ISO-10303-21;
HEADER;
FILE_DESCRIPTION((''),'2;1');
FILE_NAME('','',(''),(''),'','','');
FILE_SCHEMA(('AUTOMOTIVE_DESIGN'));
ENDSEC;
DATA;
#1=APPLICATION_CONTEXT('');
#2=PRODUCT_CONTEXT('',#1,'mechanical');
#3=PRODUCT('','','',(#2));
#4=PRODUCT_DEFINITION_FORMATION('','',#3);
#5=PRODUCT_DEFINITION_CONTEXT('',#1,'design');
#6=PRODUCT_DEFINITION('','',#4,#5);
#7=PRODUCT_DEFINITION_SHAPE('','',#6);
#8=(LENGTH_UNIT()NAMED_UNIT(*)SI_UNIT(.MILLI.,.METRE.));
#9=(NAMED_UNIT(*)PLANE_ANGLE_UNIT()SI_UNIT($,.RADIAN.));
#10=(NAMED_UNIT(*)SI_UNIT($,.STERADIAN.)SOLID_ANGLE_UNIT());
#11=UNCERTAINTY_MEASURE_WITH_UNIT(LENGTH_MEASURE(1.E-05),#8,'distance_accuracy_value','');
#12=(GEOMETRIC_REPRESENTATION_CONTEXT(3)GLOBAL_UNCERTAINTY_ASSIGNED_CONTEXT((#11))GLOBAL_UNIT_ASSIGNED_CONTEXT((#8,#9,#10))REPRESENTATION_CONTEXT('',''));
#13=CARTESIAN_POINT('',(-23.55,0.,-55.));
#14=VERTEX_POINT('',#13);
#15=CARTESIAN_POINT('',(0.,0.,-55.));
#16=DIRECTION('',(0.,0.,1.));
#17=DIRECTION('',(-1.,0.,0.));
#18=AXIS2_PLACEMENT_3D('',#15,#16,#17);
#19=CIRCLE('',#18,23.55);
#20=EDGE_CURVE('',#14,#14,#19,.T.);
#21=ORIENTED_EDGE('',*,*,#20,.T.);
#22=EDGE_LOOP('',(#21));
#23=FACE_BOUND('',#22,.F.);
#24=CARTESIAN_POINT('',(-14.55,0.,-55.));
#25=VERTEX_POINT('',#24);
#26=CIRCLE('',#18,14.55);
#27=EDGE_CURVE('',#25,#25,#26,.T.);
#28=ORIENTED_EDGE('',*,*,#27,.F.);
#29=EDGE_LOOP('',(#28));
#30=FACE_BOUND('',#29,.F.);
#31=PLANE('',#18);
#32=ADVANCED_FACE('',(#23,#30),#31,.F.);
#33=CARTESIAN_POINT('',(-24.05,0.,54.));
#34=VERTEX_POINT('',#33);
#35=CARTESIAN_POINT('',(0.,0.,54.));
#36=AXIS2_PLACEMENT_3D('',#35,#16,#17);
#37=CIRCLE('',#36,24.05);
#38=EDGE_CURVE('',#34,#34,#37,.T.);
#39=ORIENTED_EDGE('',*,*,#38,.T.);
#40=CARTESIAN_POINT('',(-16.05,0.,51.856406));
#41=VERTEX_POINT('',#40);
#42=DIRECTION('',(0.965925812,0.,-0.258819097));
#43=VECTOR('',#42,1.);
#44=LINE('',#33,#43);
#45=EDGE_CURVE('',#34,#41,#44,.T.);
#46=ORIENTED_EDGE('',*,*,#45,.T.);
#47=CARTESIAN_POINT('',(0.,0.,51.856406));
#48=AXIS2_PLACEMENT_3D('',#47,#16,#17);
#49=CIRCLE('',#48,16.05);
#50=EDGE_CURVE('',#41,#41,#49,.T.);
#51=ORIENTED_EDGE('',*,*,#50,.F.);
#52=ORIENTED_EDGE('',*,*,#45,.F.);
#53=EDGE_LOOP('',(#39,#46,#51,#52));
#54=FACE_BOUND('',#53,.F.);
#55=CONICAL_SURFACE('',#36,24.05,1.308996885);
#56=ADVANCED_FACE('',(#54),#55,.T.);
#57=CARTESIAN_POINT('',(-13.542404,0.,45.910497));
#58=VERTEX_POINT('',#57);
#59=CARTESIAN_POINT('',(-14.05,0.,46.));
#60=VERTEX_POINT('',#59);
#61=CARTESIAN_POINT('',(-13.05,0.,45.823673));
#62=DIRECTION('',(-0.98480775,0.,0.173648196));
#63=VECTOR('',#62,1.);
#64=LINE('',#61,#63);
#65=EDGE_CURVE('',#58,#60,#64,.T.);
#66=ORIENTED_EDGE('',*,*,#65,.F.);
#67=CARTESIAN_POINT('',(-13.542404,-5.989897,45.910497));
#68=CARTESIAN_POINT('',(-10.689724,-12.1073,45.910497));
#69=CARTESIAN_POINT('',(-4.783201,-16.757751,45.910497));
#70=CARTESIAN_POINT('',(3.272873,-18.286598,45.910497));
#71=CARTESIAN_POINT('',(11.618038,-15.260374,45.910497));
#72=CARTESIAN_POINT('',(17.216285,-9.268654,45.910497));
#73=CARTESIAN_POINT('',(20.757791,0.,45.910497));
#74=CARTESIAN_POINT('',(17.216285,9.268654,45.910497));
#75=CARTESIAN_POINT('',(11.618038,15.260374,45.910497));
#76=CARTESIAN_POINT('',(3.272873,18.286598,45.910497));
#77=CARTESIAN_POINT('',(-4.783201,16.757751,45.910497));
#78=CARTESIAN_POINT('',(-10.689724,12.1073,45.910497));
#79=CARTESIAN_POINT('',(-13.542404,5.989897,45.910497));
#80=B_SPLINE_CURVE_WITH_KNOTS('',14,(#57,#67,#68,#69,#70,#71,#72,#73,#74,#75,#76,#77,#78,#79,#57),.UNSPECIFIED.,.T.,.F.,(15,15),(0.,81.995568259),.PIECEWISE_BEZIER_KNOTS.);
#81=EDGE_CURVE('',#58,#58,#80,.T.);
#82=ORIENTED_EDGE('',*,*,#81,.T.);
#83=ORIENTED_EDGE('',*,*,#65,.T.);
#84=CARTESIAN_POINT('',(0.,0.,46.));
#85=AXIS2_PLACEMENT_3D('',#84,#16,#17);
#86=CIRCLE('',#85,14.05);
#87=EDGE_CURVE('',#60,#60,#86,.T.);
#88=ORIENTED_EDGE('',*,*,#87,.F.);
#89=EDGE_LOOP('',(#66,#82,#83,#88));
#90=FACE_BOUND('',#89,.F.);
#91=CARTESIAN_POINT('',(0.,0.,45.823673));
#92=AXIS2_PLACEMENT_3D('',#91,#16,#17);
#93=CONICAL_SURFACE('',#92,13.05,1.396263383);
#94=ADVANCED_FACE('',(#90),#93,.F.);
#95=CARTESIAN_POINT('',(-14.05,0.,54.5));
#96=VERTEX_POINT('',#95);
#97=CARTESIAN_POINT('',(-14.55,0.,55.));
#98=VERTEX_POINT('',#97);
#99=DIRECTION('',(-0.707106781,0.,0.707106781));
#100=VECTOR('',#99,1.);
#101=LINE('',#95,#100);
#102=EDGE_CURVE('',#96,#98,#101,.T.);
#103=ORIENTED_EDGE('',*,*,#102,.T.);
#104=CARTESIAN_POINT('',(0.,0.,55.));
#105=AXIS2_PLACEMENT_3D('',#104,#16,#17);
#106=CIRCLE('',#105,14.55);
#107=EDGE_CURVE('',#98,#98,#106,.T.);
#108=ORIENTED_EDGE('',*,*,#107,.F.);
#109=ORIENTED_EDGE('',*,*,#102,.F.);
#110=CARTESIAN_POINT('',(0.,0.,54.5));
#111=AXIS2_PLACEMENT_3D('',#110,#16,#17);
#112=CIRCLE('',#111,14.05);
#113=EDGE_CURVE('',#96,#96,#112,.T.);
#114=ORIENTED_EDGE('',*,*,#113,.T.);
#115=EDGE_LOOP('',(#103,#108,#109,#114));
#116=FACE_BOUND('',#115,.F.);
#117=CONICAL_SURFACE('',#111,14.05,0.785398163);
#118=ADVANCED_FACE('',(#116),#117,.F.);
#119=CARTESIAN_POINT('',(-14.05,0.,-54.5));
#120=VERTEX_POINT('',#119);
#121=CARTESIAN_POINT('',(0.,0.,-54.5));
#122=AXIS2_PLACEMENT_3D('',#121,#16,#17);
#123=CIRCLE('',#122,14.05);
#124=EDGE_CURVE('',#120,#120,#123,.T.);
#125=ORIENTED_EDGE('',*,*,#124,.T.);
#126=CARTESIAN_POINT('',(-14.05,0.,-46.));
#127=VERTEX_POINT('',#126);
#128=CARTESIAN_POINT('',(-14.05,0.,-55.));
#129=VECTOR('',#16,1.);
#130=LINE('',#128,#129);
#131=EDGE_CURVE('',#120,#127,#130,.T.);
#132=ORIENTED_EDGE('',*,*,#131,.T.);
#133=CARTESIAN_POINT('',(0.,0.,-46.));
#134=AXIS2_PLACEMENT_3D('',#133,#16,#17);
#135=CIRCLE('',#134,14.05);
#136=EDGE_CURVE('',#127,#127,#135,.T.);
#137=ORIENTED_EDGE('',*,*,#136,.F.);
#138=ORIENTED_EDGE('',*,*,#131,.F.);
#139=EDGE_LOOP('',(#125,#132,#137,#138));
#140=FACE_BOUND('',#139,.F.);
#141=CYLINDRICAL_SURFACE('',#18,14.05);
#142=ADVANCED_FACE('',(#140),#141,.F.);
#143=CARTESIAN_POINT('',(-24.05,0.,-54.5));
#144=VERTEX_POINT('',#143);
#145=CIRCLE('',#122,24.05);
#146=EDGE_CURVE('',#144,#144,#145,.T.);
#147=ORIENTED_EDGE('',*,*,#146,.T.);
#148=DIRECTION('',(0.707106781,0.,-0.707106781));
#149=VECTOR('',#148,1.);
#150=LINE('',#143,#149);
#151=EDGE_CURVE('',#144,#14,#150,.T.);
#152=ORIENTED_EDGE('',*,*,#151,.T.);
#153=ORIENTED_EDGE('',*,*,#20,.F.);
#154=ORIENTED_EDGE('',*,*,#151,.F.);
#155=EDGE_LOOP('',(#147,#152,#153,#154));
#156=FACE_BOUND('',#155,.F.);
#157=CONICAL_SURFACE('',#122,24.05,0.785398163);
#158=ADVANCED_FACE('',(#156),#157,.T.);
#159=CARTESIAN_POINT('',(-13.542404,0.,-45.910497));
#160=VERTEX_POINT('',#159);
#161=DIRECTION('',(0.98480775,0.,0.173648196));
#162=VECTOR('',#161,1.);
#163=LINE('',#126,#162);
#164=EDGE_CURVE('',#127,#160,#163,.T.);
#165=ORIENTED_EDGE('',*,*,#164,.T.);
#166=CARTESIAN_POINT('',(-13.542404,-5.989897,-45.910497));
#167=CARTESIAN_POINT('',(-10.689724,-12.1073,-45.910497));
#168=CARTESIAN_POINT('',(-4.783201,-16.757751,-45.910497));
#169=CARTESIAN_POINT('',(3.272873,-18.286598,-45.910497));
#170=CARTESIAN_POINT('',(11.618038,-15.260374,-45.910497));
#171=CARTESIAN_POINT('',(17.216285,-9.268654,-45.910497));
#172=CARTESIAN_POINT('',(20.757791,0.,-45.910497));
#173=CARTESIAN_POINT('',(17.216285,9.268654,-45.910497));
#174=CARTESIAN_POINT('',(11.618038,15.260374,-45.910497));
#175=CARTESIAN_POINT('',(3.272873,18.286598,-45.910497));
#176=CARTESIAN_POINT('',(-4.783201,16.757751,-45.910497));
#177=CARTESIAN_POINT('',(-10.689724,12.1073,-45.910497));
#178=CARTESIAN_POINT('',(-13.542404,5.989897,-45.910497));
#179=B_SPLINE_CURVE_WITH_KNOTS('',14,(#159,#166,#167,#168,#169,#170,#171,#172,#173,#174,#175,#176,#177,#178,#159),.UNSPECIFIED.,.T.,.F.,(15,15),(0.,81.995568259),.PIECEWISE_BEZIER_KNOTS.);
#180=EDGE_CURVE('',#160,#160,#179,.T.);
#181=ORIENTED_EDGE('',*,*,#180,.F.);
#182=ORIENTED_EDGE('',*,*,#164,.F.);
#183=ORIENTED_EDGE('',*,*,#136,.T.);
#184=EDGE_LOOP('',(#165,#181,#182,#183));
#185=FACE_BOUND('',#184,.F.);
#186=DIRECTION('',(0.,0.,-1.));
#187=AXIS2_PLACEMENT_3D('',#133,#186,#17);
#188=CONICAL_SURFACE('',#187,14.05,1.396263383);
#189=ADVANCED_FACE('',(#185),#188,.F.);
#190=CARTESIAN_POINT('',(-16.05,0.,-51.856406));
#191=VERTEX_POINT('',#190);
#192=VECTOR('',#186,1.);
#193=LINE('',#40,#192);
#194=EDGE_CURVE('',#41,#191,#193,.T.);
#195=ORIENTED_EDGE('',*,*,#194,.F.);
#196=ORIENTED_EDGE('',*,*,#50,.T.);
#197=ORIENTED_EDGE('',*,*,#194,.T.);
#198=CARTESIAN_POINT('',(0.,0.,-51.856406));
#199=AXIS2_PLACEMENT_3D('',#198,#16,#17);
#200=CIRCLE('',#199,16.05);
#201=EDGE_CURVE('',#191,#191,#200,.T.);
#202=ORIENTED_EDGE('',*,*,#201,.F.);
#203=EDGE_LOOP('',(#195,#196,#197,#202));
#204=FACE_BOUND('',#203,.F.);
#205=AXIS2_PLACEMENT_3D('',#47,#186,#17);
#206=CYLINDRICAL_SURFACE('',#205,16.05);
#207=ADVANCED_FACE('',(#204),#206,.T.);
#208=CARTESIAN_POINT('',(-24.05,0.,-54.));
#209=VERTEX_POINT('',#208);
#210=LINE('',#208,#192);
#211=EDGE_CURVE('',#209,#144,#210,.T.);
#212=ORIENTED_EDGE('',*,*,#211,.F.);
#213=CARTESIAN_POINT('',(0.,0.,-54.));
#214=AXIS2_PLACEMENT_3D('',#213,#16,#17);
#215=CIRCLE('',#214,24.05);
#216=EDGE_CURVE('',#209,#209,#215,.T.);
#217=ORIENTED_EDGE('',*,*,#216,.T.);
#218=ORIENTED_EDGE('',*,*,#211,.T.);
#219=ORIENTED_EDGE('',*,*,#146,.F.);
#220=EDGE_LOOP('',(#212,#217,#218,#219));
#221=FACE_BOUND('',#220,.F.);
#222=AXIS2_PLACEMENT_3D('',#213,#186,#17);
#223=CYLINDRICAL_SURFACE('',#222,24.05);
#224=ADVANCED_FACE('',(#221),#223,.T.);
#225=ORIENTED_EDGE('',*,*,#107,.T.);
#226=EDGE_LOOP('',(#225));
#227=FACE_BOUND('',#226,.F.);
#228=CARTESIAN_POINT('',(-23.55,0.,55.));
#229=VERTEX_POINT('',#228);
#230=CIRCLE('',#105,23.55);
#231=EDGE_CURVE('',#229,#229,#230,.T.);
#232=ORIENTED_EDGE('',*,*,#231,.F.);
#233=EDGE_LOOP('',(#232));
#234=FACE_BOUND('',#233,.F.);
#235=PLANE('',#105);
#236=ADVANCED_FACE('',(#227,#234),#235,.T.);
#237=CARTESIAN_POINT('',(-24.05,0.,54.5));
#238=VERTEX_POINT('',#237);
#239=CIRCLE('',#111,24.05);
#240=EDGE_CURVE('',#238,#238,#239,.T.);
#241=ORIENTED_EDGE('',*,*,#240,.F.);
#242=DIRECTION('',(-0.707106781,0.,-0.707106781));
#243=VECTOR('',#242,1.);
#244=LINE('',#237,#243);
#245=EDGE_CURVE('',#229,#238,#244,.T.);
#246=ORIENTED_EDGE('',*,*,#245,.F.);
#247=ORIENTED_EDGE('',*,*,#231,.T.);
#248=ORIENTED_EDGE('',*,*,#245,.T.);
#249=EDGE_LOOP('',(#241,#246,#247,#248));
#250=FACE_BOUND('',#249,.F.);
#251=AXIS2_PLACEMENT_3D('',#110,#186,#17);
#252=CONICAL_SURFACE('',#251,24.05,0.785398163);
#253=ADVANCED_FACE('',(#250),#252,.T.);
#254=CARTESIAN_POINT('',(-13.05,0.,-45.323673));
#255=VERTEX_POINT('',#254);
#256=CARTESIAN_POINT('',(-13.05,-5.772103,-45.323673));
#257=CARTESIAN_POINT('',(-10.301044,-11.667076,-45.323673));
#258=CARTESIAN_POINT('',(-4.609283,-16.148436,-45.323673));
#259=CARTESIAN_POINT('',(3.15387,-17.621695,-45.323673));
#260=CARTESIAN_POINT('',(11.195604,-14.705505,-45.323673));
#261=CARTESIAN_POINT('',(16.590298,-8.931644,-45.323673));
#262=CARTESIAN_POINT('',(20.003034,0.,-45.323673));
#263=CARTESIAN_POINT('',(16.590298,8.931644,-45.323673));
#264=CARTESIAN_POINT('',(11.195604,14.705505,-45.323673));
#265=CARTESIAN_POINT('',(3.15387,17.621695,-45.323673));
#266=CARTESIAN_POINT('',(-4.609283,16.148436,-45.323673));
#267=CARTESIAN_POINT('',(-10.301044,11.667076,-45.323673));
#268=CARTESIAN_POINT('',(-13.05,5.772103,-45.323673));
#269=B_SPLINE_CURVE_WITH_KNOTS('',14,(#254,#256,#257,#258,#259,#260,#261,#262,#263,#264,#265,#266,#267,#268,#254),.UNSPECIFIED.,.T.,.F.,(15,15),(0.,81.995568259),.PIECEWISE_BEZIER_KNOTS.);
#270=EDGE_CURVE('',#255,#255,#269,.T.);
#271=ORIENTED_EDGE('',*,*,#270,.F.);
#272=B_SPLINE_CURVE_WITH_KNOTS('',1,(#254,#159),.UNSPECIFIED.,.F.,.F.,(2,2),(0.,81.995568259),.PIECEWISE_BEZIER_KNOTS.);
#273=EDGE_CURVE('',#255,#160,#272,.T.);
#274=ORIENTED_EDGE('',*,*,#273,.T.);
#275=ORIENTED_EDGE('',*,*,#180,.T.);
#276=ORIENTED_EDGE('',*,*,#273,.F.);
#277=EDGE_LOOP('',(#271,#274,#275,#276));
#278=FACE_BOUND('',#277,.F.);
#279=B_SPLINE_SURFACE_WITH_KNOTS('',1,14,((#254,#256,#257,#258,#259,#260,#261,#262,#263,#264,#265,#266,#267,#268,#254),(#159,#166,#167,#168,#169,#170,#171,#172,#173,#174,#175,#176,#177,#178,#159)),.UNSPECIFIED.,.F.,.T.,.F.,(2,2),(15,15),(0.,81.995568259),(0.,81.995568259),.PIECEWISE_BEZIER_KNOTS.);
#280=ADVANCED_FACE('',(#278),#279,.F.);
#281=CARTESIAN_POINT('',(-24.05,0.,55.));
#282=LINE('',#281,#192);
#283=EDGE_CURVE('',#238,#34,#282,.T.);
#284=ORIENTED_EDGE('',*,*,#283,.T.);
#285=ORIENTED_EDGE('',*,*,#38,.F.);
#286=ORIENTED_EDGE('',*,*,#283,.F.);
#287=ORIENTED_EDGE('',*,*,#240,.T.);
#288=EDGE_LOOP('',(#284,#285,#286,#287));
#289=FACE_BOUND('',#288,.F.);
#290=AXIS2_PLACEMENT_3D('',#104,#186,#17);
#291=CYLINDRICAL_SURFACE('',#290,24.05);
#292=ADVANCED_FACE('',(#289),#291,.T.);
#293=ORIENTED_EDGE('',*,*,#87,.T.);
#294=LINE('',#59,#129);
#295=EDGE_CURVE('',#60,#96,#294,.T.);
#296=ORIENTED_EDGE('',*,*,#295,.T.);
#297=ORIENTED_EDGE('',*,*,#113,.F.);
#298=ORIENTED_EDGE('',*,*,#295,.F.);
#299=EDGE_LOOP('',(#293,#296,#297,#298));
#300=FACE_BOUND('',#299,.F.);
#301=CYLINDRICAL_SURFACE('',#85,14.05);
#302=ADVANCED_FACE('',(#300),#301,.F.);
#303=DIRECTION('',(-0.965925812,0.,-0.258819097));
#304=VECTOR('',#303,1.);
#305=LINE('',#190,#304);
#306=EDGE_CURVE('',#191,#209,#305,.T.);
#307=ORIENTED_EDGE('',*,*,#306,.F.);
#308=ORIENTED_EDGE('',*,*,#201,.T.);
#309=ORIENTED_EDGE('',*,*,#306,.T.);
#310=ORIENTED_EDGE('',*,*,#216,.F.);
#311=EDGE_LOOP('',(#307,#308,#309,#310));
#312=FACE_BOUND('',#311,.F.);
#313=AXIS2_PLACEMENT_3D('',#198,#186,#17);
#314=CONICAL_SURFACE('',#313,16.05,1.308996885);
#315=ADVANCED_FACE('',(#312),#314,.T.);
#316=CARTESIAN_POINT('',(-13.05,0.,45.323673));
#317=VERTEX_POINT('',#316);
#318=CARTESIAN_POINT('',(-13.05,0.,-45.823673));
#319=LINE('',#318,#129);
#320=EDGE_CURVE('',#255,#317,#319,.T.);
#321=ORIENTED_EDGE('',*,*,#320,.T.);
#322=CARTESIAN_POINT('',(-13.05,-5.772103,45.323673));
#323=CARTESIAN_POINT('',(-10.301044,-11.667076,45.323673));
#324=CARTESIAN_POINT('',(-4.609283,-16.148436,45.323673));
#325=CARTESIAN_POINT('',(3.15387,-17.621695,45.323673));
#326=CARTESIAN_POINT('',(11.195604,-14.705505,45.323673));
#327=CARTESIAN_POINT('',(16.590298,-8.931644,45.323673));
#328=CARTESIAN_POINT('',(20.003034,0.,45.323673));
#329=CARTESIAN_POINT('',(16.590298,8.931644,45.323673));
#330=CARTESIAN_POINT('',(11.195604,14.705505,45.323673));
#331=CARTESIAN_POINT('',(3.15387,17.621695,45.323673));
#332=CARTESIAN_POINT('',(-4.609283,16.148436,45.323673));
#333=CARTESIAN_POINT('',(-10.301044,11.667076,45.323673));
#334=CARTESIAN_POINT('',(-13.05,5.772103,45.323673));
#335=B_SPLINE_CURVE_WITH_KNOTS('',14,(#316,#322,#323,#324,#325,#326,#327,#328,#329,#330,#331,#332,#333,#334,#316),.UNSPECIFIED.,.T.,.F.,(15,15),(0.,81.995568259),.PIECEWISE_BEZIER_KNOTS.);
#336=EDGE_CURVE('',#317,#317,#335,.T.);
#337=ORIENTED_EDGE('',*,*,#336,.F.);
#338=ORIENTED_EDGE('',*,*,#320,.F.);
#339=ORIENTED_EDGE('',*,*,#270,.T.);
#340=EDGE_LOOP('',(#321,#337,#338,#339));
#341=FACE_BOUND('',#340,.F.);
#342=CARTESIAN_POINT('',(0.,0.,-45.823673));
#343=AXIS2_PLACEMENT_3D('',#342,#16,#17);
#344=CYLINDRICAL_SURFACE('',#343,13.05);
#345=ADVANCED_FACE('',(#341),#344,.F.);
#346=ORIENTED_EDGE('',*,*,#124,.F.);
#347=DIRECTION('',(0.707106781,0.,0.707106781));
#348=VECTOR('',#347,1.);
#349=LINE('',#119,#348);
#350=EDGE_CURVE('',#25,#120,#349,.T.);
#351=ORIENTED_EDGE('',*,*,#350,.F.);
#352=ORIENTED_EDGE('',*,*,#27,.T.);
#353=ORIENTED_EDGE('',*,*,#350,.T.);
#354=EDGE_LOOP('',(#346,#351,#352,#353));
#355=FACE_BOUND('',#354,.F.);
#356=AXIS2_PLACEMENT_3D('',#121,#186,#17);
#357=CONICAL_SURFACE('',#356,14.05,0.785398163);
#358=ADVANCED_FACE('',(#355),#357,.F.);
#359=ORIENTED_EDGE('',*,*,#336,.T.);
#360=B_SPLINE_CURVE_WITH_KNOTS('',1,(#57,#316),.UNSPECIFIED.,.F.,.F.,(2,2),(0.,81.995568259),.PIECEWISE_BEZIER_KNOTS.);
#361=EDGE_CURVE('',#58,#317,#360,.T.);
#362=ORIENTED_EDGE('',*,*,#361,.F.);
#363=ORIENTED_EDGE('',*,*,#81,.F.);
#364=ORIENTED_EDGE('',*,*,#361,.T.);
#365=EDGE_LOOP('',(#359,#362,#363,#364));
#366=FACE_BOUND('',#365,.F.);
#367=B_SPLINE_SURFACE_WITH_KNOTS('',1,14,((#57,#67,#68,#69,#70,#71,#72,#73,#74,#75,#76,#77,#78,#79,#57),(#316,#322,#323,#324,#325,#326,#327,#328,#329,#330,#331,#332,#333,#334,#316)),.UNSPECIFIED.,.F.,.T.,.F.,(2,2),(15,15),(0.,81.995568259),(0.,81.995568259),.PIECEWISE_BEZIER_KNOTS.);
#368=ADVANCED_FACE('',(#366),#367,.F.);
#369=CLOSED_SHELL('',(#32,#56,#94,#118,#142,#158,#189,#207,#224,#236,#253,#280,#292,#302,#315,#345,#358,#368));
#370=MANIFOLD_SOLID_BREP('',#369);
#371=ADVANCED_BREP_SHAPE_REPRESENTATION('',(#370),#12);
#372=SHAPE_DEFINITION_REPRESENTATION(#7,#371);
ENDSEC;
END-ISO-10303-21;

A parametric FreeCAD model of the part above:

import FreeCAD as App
import Part
import Sketcher

V = App.Vector
Q = App.Units.Quantity


def edges_at(feature, points):
    """Names of the edges that pass closest to the given points."""
    edges = feature.Shape.Edges
    near = lambda p: min(range(len(edges)), key=lambda i: edges[i].distToShape(Part.Vertex(*p))[0])
    return sorted({f"Edge{near(p) + 1}" for p in points})

doc = App.newDocument("Part")
params = doc.addObject("Spreadsheet::Sheet", "Params")
for row, (alias, value) in enumerate([
    ("sketch1_width", "10 mm"),
    ("sketch1_height", "9 mm"),
    ("sketch1_height2", "1 mm"),
    ("revolution_angle", "360 deg"),
    ("chamfer_size", "0.5 mm"),
    ("chamfer2_size", "0.5 mm"),
], start=1):
    params.set(f"A{row}", alias)
    params.set(f"B{row}", "=" + value)
    params.setAlias(f"B{row}", alias)

body = doc.addObject("PartDesign::Body", "Body")

# Sketch on XZ plane
sketch1 = body.newObject("Sketcher::SketchObject", "Sketch")
sketch1.AttachmentSupport = (doc.getObject("XZ_Plane"), [""])
sketch1.MapMode = "FlatFace"
sketch1.addGeometry([
    Part.LineSegment(V(-13.1, 45.8, 0), V(-14.1, 46, 0)),  # 0
    Part.LineSegment(V(-14.1, 46, 0), V(-14.1, 55, 0)),  # 1
    Part.LineSegment(V(-14.1, 55, 0), V(-24.1, 55, 0)),  # 2
    Part.LineSegment(V(-24.1, 55, 0), V(-24.1, 54, 0)),  # 3
    Part.LineSegment(V(-24.1, 54, 0), V(-16.1, 51.9, 0)),  # 4
    Part.LineSegment(V(-16.1, 51.9, 0), V(-16.1, -51.9, 0)),  # 5
    Part.LineSegment(V(-16.1, -51.9, 0), V(-24.1, -54, 0)),  # 6
    Part.LineSegment(V(-24.1, -54, 0), V(-24.1, -55, 0)),  # 7
    Part.LineSegment(V(-24.1, -55, 0), V(-14.1, -55, 0)),  # 8
    Part.LineSegment(V(-14.1, -55, 0), V(-14.1, -46, 0)),  # 9
    Part.LineSegment(V(-14.1, -46, 0), V(-13.1, -45.8, 0)),  # 10
    Part.LineSegment(V(-13.1, -45.8, 0), V(-13.1, 45.8, 0)),  # 11
], False)
sketch1.addConstraint([
    Sketcher.Constraint("Coincident", 0, 2, 1, 1),
    Sketcher.Constraint("Coincident", 1, 2, 2, 1),
    Sketcher.Constraint("Coincident", 2, 2, 3, 1),
    Sketcher.Constraint("Coincident", 3, 2, 4, 1),
    Sketcher.Constraint("Coincident", 4, 2, 5, 1),
    Sketcher.Constraint("Coincident", 5, 2, 6, 1),
    Sketcher.Constraint("Coincident", 6, 2, 7, 1),
    Sketcher.Constraint("Coincident", 7, 2, 8, 1),
    Sketcher.Constraint("Coincident", 8, 2, 9, 1),
    Sketcher.Constraint("Coincident", 9, 2, 10, 1),
    Sketcher.Constraint("Coincident", 10, 2, 11, 1),
    Sketcher.Constraint("Coincident", 11, 2, 0, 1),
    Sketcher.Constraint("Vertical", 1),
    Sketcher.Constraint("Horizontal", 2),
    Sketcher.Constraint("Vertical", 3),
    Sketcher.Constraint("Vertical", 5),
    Sketcher.Constraint("Vertical", 7),
    Sketcher.Constraint("Horizontal", 8),
    Sketcher.Constraint("Vertical", 9),
    Sketcher.Constraint("Vertical", 11),
    Sketcher.Constraint("Symmetric", 3, 2, 6, 2, -1),
    Sketcher.Constraint("Symmetric", 1, 2, 8, 2, -1),
    Sketcher.Constraint("Equal", 1, 9),
    Sketcher.Constraint("Equal", 4, 6),
    Sketcher.Constraint("Equal", 0, 10),
    Sketcher.Constraint("DistanceX", 2, 2, 2, 1, 10.0),
    Sketcher.Constraint("DistanceY", 1, 1, 1, 2, 9.0),
    Sketcher.Constraint("DistanceY", 3, 2, 3, 1, 1.0),
    Sketcher.Constraint("Angle", 0, Q("169.999999 deg")),
    Sketcher.Constraint("Angle", 4, Q("-15.000003 deg")),
    Sketcher.Constraint("DistanceY", -1, 1, 0, 2, 46.0),
    Sketcher.Constraint("DistanceX", 4, 2, 1, 2, 2.0),
    Sketcher.Constraint("DistanceX", 9, 2, 10, 2, 1.0),
    Sketcher.Constraint("DistanceX", 0, 2, -1, 1, 14.05),
])
sketch1.setExpression("Constraints[25]", "Params.sketch1_width")
sketch1.setExpression("Constraints[26]", "Params.sketch1_height")
sketch1.setExpression("Constraints[27]", "Params.sketch1_height2")
revolution = body.newObject("PartDesign::Revolution", "Revolution")
revolution.Profile = sketch1
revolution.ReferenceAxis = (sketch1, ["V_Axis"])
revolution.setExpression("Angle", "Params.revolution_angle")
doc.recompute()

chamfer = body.newObject("PartDesign::Chamfer", "Chamfer")
chamfer.Base = (revolution, edges_at(revolution, [
    (14.05, 0, -55),
    (14.05, 0, 55),
    (24.05, 0, -55),
    (24.05, 0, 55),
]))
chamfer.setExpression("Size", "Params.chamfer_size")
doc.recompute()

chamfer2 = body.newObject("PartDesign::Chamfer", "Chamfer001")
chamfer2.Base = (chamfer, edges_at(chamfer, [(13.05, 0, 45.824), (13.05, 0, -45.824)]))
chamfer2.setExpression("Size", "Params.chamfer2_size")

doc.recompute()
